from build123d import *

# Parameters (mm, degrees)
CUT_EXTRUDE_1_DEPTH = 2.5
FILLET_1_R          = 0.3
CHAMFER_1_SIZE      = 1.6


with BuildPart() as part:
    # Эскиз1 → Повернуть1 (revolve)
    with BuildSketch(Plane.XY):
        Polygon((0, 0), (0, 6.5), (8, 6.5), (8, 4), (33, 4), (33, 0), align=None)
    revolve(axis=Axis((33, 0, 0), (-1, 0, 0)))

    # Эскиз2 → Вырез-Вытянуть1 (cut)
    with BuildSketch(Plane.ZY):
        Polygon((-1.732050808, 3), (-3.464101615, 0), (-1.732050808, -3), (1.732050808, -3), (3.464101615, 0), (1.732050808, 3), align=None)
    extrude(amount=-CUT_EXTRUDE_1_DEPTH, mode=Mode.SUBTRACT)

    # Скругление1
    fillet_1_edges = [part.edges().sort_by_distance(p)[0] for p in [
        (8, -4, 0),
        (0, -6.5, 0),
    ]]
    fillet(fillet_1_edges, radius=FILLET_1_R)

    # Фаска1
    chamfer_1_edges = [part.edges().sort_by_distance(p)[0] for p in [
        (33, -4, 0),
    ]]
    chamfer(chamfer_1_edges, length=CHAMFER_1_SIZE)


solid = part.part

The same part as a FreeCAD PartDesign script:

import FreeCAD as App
import Part
import Sketcher

V = App.Vector
Q = App.Units.Quantity


def edges_at(feature, points):
    """Names of the edges that pass closest to the given points."""
    edges = feature.Shape.Edges
    near = lambda p: min(range(len(edges)), key=lambda i: edges[i].distToShape(Part.Vertex(*p))[0])
    return sorted({f"Edge{near(p) + 1}" for p in points})


def add_polygon(sketch, points):
    """Adds a closed chain of lines whose ends are joined by coincident constraints."""
    first, n = sketch.GeometryCount, len(points)
    for a, b in zip(points, points[1:] + points[:1]):
        sketch.addGeometry(Part.LineSegment(App.Vector(*a, 0), App.Vector(*b, 0)), False)
    for i in range(n):
        sketch.addConstraint(Sketcher.Constraint("Coincident", first + i, 2, first + (i + 1) % n, 1))

doc = App.newDocument("Part")
body = doc.addObject("PartDesign::Body", "Body")

# Sketch on XY plane
sketch1 = body.newObject("Sketcher::SketchObject", "Sketch")
sketch1.AttachmentSupport = (doc.getObject("XY_Plane"), [""])
sketch1.MapMode = "FlatFace"
add_polygon(sketch1, [(0, 6.5), (0, 0), (33, 0), (33, 4), (8, 4), (8, 6.5)])  # lines 0-5
sketch1.addConstraint([
    Sketcher.Constraint("Vertical", 0),
    Sketcher.Constraint("Horizontal", 1),
    Sketcher.Constraint("Vertical", 2),
    Sketcher.Constraint("Horizontal", 3),
    Sketcher.Constraint("Vertical", 4),
    Sketcher.Constraint("Horizontal", 5),
    Sketcher.Constraint("Coincident", 0, 2, -1, 1),
    Sketcher.Constraint("DistanceX", 1, 1, 1, 2, Q("33 mm")),
    Sketcher.Constraint("DistanceX", 3, 2, 3, 1, Q("25 mm")),
    Sketcher.Constraint("DistanceY", 2, 1, 2, 2, Q("4 mm")),
    Sketcher.Constraint("DistanceY", 0, 2, 0, 1, Q("6.5 mm")),
])
revolution = body.newObject("PartDesign::Revolution", "Revolution")
revolution.Profile = sketch1
revolution.ReferenceAxis = (sketch1, ["H_Axis"])
revolution.Angle = 360

# Sketch on YZ plane
sketch2 = body.newObject("Sketcher::SketchObject", "Sketch001")
sketch2.AttachmentSupport = (doc.getObject("YZ_Plane"), [""])
sketch2.MapMode = "FlatFace"
add_polygon(sketch2, [(3, -1.732051), (0, -3.464102), (-3, -1.732051), (-3, 1.732051), (0, 3.464102), (3, 1.732051)])  # lines 0-5
sketch2.addConstraint([
    Sketcher.Constraint("Vertical", 2),
    Sketcher.Constraint("Vertical", 5),
    Sketcher.Constraint("Symmetric", 0, 2, 3, 2, -1, 1),
    Sketcher.Constraint("Symmetric", 1, 2, 4, 2, -1, 1),
    Sketcher.Constraint("PointOnObject", 0, 2, -2),
    Sketcher.Constraint("Parallel", 0, 3),
    Sketcher.Constraint("Horizontal", 2, 2, 4, 2),
    Sketcher.Constraint("Angle", 0, Q("-150 deg")),
    Sketcher.Constraint("DistanceX", 1, 2, -1, 1, Q("3 mm")),
    Sketcher.Constraint("DistanceY", 2, 1, 2, 2, Q("3.464102 mm")),
])
pocket1 = body.newObject("PartDesign::Pocket", "Pocket")
pocket1.Profile = sketch2
pocket1.Length = 2.5
pocket1.Reversed = True
doc.recompute()

fillet = body.newObject("PartDesign::Fillet", "Fillet")
fillet.Base = (pocket1, edges_at(pocket1, [(8, -4, 0), (0, -6.5, 0)]))
fillet.Radius = 0.3
doc.recompute()

chamfer = body.newObject("PartDesign::Chamfer", "Chamfer")
chamfer.Base = (fillet, edges_at(fillet, [(33, -4, 0)]))
chamfer.Size = 1.6

doc.recompute()
